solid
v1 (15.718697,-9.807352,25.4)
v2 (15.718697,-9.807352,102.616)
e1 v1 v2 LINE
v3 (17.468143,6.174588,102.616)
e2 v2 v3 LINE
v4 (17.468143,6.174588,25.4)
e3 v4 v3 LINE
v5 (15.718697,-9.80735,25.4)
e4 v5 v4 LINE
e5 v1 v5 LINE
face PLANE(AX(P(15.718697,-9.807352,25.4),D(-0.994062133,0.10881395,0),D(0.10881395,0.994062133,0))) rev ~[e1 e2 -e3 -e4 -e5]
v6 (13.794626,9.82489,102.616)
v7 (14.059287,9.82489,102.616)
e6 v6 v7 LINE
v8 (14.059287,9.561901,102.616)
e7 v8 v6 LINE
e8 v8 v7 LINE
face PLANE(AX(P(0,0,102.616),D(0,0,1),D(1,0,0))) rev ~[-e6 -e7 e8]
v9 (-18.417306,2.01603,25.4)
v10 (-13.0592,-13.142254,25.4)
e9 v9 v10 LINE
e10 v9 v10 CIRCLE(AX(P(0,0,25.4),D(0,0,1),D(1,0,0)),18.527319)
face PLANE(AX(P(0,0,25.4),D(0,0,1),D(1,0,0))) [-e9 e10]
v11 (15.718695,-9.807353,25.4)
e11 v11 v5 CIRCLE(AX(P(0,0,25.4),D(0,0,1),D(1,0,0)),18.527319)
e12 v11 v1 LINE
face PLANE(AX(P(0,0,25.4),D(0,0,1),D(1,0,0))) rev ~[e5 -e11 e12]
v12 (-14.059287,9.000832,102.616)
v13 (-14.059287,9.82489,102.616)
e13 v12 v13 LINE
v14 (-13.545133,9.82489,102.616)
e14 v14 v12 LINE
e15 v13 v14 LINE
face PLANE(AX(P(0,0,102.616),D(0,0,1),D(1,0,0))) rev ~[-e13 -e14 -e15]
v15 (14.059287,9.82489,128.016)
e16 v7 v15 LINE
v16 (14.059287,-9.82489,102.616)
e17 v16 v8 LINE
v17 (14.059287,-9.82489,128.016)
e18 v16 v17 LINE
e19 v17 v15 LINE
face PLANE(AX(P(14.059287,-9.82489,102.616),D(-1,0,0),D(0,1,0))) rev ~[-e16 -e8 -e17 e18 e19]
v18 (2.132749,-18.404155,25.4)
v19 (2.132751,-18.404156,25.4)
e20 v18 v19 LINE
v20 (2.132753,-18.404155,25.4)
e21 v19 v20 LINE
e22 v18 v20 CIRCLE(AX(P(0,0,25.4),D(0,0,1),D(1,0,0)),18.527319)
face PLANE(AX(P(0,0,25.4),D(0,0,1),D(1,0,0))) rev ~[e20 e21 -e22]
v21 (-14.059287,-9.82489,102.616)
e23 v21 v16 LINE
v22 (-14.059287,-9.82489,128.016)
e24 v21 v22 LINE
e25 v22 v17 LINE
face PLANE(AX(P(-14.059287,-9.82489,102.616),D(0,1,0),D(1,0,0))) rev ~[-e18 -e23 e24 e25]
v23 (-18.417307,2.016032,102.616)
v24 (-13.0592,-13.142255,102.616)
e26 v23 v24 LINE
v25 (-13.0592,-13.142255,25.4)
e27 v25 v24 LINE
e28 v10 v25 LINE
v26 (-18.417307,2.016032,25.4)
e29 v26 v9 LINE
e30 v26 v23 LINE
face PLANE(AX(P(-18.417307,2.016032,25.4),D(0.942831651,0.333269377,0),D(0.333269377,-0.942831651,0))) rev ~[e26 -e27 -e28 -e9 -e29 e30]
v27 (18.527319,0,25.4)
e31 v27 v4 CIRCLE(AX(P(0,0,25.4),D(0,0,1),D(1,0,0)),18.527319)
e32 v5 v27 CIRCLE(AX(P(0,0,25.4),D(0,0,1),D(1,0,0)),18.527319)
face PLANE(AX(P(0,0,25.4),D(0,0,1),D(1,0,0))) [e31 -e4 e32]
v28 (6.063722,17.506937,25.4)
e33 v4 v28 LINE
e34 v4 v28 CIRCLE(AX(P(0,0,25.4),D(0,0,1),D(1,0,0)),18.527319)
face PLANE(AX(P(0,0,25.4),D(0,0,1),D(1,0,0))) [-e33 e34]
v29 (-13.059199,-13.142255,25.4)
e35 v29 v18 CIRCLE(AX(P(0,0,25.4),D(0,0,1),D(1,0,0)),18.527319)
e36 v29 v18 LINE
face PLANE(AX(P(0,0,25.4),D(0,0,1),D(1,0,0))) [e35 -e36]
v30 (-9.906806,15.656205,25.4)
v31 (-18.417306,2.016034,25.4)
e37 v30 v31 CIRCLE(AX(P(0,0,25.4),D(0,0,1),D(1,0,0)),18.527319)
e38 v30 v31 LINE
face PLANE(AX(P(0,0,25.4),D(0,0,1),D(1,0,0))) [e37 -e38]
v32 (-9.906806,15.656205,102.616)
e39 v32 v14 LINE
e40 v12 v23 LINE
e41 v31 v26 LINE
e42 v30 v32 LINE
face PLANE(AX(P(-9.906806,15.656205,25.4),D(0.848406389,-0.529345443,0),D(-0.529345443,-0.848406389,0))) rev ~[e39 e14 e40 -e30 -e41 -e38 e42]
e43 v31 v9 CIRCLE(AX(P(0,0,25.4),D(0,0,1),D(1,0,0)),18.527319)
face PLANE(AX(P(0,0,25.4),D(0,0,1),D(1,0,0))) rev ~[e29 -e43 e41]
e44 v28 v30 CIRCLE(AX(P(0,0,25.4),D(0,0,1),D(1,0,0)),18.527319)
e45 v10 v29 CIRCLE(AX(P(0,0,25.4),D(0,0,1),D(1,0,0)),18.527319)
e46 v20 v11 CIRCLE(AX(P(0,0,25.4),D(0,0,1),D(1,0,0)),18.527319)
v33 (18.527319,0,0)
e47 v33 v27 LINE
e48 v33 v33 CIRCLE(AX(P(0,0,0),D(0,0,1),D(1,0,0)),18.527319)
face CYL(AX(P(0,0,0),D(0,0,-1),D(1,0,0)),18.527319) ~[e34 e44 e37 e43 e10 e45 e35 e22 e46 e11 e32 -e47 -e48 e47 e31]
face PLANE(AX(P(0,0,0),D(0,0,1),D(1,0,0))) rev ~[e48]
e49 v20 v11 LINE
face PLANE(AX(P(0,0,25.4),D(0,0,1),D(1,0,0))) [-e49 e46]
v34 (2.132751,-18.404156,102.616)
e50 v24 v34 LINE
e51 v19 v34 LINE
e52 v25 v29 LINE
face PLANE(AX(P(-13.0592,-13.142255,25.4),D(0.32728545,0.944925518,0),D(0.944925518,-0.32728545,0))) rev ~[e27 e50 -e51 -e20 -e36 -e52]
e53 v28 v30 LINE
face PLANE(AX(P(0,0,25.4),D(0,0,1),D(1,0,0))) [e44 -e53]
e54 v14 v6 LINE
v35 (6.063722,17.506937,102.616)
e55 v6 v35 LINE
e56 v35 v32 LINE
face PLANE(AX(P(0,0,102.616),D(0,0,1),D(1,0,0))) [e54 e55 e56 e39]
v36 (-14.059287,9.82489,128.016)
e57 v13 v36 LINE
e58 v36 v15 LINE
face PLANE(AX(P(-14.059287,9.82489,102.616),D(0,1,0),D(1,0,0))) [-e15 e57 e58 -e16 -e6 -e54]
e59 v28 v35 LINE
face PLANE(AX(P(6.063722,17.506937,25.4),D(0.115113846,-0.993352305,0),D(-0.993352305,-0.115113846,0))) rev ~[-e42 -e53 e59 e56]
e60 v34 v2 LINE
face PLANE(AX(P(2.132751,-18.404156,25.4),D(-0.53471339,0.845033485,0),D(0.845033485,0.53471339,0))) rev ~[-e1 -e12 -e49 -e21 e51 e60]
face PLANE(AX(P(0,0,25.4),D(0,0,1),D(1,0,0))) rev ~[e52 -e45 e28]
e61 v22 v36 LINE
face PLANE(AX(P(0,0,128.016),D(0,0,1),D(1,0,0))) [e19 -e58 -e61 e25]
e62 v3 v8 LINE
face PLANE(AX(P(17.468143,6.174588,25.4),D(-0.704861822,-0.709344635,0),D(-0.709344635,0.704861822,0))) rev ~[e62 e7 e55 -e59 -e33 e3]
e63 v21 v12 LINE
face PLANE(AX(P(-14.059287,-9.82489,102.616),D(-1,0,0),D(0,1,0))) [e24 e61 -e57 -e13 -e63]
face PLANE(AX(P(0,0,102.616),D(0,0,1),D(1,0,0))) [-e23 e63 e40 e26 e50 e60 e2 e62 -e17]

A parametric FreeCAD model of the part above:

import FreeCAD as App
import Part
import Sketcher
Q = App.Units.Quantity

doc = App.newDocument("Part")
params = doc.addObject("Spreadsheet::Sheet", "Params")
for row, (alias, value) in enumerate([
    ("pad1_length", "1 in"),
    ("pad2_length", "3.04 in"),
    ("pad3_length", "1 in"),
], start=1):
    params.set(f"A{row}", alias)
    params.set(f"B{row}", "=" + value)
    params.setAlias(f"B{row}", alias)

body = doc.addObject("PartDesign::Body", "Body")

# Sketch on XY plane
sketch1 = body.newObject("Sketcher::SketchObject", "Sketch")
sketch1.AttachmentSupport = (doc.getObject("XY_Plane"), [""])
sketch1.MapMode = "FlatFace"
sketch1.addGeometry(Part.Circle(App.Vector(0, 0, 0), App.Vector(0, 0, 1), 19), False)
sketch1.addConstraint([
    Sketcher.Constraint("Coincident", 0, 3, -1, 1),
    Sketcher.Constraint("Diameter", 0, Q("37.054638 mm")),
])
pad1 = body.newObject("PartDesign::Pad", "Pad")
pad1.Profile = sketch1
pad1.setExpression("Length", "Params.pad1_length")

# Sketch on XY plane
sketch2 = body.newObject("Sketcher::SketchObject", "Sketch001")
sketch2.AttachmentSupport = (doc.getObject("XY_Plane"), [""])
sketch2.MapMode = "FlatFace"
sketch2.AttachmentOffset = App.Placement(App.Vector(0, 0, 1 * 25.4), App.Rotation())
sketch2.addGeometry([
    Part.LineSegment(App.Vector(6, 18, 0), App.Vector(-10, 16, 0)),  # 0
    Part.LineSegment(App.Vector(-10, 16, 0), App.Vector(-18, 2, 0)),  # 1
    Part.LineSegment(App.Vector(-18, 2, 0), App.Vector(-13, -13, 0)),  # 2
    Part.LineSegment(App.Vector(-13, -13, 0), App.Vector(2, -18, 0)),  # 3
    Part.LineSegment(App.Vector(2, -18, 0), App.Vector(16, -10, 0)),  # 4
    Part.LineSegment(App.Vector(16, -10, 0), App.Vector(17, 6, 0)),  # 5
    Part.LineSegment(App.Vector(17, 6, 0), App.Vector(6, 18, 0)),  # 6
], False)
sketch2.addConstraint([
    Sketcher.Constraint("Coincident", 0, 2, 1, 1),
    Sketcher.Constraint("Coincident", 1, 2, 2, 1),
    Sketcher.Constraint("Coincident", 2, 2, 3, 1),
    Sketcher.Constraint("Coincident", 3, 2, 4, 1),
    Sketcher.Constraint("Coincident", 4, 2, 5, 1),
    Sketcher.Constraint("Coincident", 5, 2, 6, 1),
    Sketcher.Constraint("Coincident", 6, 2, 0, 1),
    Sketcher.Constraint("Equal", 0, 1),
    Sketcher.Constraint("Equal", 1, 2),
    Sketcher.Constraint("Equal", 2, 3),
    Sketcher.Constraint("Equal", 3, 4),
    Sketcher.Constraint("Equal", 4, 5),
    Sketcher.Constraint("Equal", 5, 6),
    Sketcher.Constraint("DistanceX", 2, 2, -1, 1, Q("13.0592 mm")),
    Sketcher.Constraint("DistanceX", 1, 2, 0, 2, Q("8.510501 mm")),
    Sketcher.Constraint("DistanceY", 3, 2, 2, 2, Q("5.261901 mm")),
    Sketcher.Constraint("DistanceY", -1, 1, 1, 2, Q("2.016032 mm")),
    Sketcher.Constraint("DistanceX", -1, 1, 3, 2, Q("2.132751 mm")),
    Sketcher.Constraint("DistanceY", 2, 2, 0, 2, Q("28.79846 mm")),
    Sketcher.Constraint("DistanceY", 4, 2, 5, 2, Q("15.98194 mm")),
    Sketcher.Constraint("DistanceX", 0, 2, 5, 2, Q("27.374949 mm")),
])
pad2 = body.newObject("PartDesign::Pad", "Pad001")
pad2.Profile = sketch2
pad2.setExpression("Length", "Params.pad2_length")

# Sketch on XY plane
sketch3 = body.newObject("Sketcher::SketchObject", "Sketch002")
sketch3.AttachmentSupport = (doc.getObject("XY_Plane"), [""])
sketch3.MapMode = "FlatFace"
sketch3.AttachmentOffset = App.Placement(App.Vector(0, 0, 4.04 * 25.4), App.Rotation())
sketch3.addGeometry([
    Part.LineSegment(App.Vector(-14, 10, 0), App.Vector(-14, -10, 0)),
    Part.LineSegment(App.Vector(-14, -10, 0), App.Vector(14, -10, 0)),
    Part.LineSegment(App.Vector(14, -10, 0), App.Vector(14, 10, 0)),
    Part.LineSegment(App.Vector(14, 10, 0), App.Vector(-14, 10, 0)),
], False)
sketch3.addConstraint([
    Sketcher.Constraint("Coincident", 0, 2, 1, 1),
    Sketcher.Constraint("Coincident", 1, 2, 2, 1),
    Sketcher.Constraint("Coincident", 2, 2, 3, 1),
    Sketcher.Constraint("Coincident", 3, 2, 0, 1),
    Sketcher.Constraint("Vertical", 0),
    Sketcher.Constraint("Horizontal", 1),
    Sketcher.Constraint("Vertical", 2),
    Sketcher.Constraint("Horizontal", 3),
    Sketcher.Constraint("Symmetric", 0, 2, 2, 2, -1, 1),
    Sketcher.Constraint("DistanceY", 0, 2, 0, 1, Q("19.64978 mm")),
    Sketcher.Constraint("DistanceX", 1, 1, 1, 2, Q("28.118574 mm")),
])
pad3 = body.newObject("PartDesign::Pad", "Pad002")
pad3.Profile = sketch3
pad3.setExpression("Length", "Params.pad3_length")

doc.recompute()
